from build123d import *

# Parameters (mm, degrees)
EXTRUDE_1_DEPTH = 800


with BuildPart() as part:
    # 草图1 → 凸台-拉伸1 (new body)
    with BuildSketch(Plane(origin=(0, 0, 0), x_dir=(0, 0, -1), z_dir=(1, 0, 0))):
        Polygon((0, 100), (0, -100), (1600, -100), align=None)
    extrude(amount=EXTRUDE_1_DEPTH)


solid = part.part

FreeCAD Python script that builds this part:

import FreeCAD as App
import Part
import Sketcher

V = App.Vector

doc = App.newDocument("Part")
params = doc.addObject("Spreadsheet::Sheet", "Params")
for row, (alias, value) in enumerate([
    ("sketch1_width", "200 mm"),
    ("sketch1_height", "1600 mm"),
    ("pad1_length", "800 mm"),
], start=1):
    params.set(f"A{row}", alias)
    params.set(f"B{row}", "=" + value)
    params.setAlias(f"B{row}", alias)

body = doc.addObject("PartDesign::Body", "Body")

sketch1 = body.newObject("Sketcher::SketchObject", "Sketch")
sketch1.AttachmentSupport = (doc.getObject("YZ_Plane"), [""])
sketch1.MapMode = "FlatFace"
sketch1.addGeometry(Part.LineSegment(V(100, 0, 0), V(-100, 0, 0)), False)
sketch1.addGeometry(Part.LineSegment(V(-100, 0, 0), V(-100, -1600, 0)), False)
sketch1.addGeometry(Part.LineSegment(V(-100, -1600, 0), V(100, 0, 0)), False)
sketch1.addConstraint(Sketcher.Constraint("Coincident", 0, 2, 1, 1))
sketch1.addConstraint(Sketcher.Constraint("Coincident", 1, 2, 2, 1))
sketch1.addConstraint(Sketcher.Constraint("Coincident", 2, 2, 0, 1))
sketch1.addConstraint(Sketcher.Constraint("Horizontal", 0))
sketch1.addConstraint(Sketcher.Constraint("Vertical", 1))
sketch1.addConstraint(Sketcher.Constraint("Symmetric", 0, 2, 2, 2, -1, 1))
sketch1.addConstraint(Sketcher.Constraint("DistanceX", 0, 2, 0, 1, 200.0))
sketch1.addConstraint(Sketcher.Constraint("DistanceY", 1, 2, 1, 1, 1600.0))
sketch1.setExpression("Constraints[6]", "Params.sketch1_width")
sketch1.setExpression("Constraints[7]", "Params.sketch1_height")
pad1 = body.newObject("PartDesign::Pad", "Pad")
pad1.Profile = sketch1
pad1.setExpression("Length", "Params.pad1_length")

doc.recompute()
